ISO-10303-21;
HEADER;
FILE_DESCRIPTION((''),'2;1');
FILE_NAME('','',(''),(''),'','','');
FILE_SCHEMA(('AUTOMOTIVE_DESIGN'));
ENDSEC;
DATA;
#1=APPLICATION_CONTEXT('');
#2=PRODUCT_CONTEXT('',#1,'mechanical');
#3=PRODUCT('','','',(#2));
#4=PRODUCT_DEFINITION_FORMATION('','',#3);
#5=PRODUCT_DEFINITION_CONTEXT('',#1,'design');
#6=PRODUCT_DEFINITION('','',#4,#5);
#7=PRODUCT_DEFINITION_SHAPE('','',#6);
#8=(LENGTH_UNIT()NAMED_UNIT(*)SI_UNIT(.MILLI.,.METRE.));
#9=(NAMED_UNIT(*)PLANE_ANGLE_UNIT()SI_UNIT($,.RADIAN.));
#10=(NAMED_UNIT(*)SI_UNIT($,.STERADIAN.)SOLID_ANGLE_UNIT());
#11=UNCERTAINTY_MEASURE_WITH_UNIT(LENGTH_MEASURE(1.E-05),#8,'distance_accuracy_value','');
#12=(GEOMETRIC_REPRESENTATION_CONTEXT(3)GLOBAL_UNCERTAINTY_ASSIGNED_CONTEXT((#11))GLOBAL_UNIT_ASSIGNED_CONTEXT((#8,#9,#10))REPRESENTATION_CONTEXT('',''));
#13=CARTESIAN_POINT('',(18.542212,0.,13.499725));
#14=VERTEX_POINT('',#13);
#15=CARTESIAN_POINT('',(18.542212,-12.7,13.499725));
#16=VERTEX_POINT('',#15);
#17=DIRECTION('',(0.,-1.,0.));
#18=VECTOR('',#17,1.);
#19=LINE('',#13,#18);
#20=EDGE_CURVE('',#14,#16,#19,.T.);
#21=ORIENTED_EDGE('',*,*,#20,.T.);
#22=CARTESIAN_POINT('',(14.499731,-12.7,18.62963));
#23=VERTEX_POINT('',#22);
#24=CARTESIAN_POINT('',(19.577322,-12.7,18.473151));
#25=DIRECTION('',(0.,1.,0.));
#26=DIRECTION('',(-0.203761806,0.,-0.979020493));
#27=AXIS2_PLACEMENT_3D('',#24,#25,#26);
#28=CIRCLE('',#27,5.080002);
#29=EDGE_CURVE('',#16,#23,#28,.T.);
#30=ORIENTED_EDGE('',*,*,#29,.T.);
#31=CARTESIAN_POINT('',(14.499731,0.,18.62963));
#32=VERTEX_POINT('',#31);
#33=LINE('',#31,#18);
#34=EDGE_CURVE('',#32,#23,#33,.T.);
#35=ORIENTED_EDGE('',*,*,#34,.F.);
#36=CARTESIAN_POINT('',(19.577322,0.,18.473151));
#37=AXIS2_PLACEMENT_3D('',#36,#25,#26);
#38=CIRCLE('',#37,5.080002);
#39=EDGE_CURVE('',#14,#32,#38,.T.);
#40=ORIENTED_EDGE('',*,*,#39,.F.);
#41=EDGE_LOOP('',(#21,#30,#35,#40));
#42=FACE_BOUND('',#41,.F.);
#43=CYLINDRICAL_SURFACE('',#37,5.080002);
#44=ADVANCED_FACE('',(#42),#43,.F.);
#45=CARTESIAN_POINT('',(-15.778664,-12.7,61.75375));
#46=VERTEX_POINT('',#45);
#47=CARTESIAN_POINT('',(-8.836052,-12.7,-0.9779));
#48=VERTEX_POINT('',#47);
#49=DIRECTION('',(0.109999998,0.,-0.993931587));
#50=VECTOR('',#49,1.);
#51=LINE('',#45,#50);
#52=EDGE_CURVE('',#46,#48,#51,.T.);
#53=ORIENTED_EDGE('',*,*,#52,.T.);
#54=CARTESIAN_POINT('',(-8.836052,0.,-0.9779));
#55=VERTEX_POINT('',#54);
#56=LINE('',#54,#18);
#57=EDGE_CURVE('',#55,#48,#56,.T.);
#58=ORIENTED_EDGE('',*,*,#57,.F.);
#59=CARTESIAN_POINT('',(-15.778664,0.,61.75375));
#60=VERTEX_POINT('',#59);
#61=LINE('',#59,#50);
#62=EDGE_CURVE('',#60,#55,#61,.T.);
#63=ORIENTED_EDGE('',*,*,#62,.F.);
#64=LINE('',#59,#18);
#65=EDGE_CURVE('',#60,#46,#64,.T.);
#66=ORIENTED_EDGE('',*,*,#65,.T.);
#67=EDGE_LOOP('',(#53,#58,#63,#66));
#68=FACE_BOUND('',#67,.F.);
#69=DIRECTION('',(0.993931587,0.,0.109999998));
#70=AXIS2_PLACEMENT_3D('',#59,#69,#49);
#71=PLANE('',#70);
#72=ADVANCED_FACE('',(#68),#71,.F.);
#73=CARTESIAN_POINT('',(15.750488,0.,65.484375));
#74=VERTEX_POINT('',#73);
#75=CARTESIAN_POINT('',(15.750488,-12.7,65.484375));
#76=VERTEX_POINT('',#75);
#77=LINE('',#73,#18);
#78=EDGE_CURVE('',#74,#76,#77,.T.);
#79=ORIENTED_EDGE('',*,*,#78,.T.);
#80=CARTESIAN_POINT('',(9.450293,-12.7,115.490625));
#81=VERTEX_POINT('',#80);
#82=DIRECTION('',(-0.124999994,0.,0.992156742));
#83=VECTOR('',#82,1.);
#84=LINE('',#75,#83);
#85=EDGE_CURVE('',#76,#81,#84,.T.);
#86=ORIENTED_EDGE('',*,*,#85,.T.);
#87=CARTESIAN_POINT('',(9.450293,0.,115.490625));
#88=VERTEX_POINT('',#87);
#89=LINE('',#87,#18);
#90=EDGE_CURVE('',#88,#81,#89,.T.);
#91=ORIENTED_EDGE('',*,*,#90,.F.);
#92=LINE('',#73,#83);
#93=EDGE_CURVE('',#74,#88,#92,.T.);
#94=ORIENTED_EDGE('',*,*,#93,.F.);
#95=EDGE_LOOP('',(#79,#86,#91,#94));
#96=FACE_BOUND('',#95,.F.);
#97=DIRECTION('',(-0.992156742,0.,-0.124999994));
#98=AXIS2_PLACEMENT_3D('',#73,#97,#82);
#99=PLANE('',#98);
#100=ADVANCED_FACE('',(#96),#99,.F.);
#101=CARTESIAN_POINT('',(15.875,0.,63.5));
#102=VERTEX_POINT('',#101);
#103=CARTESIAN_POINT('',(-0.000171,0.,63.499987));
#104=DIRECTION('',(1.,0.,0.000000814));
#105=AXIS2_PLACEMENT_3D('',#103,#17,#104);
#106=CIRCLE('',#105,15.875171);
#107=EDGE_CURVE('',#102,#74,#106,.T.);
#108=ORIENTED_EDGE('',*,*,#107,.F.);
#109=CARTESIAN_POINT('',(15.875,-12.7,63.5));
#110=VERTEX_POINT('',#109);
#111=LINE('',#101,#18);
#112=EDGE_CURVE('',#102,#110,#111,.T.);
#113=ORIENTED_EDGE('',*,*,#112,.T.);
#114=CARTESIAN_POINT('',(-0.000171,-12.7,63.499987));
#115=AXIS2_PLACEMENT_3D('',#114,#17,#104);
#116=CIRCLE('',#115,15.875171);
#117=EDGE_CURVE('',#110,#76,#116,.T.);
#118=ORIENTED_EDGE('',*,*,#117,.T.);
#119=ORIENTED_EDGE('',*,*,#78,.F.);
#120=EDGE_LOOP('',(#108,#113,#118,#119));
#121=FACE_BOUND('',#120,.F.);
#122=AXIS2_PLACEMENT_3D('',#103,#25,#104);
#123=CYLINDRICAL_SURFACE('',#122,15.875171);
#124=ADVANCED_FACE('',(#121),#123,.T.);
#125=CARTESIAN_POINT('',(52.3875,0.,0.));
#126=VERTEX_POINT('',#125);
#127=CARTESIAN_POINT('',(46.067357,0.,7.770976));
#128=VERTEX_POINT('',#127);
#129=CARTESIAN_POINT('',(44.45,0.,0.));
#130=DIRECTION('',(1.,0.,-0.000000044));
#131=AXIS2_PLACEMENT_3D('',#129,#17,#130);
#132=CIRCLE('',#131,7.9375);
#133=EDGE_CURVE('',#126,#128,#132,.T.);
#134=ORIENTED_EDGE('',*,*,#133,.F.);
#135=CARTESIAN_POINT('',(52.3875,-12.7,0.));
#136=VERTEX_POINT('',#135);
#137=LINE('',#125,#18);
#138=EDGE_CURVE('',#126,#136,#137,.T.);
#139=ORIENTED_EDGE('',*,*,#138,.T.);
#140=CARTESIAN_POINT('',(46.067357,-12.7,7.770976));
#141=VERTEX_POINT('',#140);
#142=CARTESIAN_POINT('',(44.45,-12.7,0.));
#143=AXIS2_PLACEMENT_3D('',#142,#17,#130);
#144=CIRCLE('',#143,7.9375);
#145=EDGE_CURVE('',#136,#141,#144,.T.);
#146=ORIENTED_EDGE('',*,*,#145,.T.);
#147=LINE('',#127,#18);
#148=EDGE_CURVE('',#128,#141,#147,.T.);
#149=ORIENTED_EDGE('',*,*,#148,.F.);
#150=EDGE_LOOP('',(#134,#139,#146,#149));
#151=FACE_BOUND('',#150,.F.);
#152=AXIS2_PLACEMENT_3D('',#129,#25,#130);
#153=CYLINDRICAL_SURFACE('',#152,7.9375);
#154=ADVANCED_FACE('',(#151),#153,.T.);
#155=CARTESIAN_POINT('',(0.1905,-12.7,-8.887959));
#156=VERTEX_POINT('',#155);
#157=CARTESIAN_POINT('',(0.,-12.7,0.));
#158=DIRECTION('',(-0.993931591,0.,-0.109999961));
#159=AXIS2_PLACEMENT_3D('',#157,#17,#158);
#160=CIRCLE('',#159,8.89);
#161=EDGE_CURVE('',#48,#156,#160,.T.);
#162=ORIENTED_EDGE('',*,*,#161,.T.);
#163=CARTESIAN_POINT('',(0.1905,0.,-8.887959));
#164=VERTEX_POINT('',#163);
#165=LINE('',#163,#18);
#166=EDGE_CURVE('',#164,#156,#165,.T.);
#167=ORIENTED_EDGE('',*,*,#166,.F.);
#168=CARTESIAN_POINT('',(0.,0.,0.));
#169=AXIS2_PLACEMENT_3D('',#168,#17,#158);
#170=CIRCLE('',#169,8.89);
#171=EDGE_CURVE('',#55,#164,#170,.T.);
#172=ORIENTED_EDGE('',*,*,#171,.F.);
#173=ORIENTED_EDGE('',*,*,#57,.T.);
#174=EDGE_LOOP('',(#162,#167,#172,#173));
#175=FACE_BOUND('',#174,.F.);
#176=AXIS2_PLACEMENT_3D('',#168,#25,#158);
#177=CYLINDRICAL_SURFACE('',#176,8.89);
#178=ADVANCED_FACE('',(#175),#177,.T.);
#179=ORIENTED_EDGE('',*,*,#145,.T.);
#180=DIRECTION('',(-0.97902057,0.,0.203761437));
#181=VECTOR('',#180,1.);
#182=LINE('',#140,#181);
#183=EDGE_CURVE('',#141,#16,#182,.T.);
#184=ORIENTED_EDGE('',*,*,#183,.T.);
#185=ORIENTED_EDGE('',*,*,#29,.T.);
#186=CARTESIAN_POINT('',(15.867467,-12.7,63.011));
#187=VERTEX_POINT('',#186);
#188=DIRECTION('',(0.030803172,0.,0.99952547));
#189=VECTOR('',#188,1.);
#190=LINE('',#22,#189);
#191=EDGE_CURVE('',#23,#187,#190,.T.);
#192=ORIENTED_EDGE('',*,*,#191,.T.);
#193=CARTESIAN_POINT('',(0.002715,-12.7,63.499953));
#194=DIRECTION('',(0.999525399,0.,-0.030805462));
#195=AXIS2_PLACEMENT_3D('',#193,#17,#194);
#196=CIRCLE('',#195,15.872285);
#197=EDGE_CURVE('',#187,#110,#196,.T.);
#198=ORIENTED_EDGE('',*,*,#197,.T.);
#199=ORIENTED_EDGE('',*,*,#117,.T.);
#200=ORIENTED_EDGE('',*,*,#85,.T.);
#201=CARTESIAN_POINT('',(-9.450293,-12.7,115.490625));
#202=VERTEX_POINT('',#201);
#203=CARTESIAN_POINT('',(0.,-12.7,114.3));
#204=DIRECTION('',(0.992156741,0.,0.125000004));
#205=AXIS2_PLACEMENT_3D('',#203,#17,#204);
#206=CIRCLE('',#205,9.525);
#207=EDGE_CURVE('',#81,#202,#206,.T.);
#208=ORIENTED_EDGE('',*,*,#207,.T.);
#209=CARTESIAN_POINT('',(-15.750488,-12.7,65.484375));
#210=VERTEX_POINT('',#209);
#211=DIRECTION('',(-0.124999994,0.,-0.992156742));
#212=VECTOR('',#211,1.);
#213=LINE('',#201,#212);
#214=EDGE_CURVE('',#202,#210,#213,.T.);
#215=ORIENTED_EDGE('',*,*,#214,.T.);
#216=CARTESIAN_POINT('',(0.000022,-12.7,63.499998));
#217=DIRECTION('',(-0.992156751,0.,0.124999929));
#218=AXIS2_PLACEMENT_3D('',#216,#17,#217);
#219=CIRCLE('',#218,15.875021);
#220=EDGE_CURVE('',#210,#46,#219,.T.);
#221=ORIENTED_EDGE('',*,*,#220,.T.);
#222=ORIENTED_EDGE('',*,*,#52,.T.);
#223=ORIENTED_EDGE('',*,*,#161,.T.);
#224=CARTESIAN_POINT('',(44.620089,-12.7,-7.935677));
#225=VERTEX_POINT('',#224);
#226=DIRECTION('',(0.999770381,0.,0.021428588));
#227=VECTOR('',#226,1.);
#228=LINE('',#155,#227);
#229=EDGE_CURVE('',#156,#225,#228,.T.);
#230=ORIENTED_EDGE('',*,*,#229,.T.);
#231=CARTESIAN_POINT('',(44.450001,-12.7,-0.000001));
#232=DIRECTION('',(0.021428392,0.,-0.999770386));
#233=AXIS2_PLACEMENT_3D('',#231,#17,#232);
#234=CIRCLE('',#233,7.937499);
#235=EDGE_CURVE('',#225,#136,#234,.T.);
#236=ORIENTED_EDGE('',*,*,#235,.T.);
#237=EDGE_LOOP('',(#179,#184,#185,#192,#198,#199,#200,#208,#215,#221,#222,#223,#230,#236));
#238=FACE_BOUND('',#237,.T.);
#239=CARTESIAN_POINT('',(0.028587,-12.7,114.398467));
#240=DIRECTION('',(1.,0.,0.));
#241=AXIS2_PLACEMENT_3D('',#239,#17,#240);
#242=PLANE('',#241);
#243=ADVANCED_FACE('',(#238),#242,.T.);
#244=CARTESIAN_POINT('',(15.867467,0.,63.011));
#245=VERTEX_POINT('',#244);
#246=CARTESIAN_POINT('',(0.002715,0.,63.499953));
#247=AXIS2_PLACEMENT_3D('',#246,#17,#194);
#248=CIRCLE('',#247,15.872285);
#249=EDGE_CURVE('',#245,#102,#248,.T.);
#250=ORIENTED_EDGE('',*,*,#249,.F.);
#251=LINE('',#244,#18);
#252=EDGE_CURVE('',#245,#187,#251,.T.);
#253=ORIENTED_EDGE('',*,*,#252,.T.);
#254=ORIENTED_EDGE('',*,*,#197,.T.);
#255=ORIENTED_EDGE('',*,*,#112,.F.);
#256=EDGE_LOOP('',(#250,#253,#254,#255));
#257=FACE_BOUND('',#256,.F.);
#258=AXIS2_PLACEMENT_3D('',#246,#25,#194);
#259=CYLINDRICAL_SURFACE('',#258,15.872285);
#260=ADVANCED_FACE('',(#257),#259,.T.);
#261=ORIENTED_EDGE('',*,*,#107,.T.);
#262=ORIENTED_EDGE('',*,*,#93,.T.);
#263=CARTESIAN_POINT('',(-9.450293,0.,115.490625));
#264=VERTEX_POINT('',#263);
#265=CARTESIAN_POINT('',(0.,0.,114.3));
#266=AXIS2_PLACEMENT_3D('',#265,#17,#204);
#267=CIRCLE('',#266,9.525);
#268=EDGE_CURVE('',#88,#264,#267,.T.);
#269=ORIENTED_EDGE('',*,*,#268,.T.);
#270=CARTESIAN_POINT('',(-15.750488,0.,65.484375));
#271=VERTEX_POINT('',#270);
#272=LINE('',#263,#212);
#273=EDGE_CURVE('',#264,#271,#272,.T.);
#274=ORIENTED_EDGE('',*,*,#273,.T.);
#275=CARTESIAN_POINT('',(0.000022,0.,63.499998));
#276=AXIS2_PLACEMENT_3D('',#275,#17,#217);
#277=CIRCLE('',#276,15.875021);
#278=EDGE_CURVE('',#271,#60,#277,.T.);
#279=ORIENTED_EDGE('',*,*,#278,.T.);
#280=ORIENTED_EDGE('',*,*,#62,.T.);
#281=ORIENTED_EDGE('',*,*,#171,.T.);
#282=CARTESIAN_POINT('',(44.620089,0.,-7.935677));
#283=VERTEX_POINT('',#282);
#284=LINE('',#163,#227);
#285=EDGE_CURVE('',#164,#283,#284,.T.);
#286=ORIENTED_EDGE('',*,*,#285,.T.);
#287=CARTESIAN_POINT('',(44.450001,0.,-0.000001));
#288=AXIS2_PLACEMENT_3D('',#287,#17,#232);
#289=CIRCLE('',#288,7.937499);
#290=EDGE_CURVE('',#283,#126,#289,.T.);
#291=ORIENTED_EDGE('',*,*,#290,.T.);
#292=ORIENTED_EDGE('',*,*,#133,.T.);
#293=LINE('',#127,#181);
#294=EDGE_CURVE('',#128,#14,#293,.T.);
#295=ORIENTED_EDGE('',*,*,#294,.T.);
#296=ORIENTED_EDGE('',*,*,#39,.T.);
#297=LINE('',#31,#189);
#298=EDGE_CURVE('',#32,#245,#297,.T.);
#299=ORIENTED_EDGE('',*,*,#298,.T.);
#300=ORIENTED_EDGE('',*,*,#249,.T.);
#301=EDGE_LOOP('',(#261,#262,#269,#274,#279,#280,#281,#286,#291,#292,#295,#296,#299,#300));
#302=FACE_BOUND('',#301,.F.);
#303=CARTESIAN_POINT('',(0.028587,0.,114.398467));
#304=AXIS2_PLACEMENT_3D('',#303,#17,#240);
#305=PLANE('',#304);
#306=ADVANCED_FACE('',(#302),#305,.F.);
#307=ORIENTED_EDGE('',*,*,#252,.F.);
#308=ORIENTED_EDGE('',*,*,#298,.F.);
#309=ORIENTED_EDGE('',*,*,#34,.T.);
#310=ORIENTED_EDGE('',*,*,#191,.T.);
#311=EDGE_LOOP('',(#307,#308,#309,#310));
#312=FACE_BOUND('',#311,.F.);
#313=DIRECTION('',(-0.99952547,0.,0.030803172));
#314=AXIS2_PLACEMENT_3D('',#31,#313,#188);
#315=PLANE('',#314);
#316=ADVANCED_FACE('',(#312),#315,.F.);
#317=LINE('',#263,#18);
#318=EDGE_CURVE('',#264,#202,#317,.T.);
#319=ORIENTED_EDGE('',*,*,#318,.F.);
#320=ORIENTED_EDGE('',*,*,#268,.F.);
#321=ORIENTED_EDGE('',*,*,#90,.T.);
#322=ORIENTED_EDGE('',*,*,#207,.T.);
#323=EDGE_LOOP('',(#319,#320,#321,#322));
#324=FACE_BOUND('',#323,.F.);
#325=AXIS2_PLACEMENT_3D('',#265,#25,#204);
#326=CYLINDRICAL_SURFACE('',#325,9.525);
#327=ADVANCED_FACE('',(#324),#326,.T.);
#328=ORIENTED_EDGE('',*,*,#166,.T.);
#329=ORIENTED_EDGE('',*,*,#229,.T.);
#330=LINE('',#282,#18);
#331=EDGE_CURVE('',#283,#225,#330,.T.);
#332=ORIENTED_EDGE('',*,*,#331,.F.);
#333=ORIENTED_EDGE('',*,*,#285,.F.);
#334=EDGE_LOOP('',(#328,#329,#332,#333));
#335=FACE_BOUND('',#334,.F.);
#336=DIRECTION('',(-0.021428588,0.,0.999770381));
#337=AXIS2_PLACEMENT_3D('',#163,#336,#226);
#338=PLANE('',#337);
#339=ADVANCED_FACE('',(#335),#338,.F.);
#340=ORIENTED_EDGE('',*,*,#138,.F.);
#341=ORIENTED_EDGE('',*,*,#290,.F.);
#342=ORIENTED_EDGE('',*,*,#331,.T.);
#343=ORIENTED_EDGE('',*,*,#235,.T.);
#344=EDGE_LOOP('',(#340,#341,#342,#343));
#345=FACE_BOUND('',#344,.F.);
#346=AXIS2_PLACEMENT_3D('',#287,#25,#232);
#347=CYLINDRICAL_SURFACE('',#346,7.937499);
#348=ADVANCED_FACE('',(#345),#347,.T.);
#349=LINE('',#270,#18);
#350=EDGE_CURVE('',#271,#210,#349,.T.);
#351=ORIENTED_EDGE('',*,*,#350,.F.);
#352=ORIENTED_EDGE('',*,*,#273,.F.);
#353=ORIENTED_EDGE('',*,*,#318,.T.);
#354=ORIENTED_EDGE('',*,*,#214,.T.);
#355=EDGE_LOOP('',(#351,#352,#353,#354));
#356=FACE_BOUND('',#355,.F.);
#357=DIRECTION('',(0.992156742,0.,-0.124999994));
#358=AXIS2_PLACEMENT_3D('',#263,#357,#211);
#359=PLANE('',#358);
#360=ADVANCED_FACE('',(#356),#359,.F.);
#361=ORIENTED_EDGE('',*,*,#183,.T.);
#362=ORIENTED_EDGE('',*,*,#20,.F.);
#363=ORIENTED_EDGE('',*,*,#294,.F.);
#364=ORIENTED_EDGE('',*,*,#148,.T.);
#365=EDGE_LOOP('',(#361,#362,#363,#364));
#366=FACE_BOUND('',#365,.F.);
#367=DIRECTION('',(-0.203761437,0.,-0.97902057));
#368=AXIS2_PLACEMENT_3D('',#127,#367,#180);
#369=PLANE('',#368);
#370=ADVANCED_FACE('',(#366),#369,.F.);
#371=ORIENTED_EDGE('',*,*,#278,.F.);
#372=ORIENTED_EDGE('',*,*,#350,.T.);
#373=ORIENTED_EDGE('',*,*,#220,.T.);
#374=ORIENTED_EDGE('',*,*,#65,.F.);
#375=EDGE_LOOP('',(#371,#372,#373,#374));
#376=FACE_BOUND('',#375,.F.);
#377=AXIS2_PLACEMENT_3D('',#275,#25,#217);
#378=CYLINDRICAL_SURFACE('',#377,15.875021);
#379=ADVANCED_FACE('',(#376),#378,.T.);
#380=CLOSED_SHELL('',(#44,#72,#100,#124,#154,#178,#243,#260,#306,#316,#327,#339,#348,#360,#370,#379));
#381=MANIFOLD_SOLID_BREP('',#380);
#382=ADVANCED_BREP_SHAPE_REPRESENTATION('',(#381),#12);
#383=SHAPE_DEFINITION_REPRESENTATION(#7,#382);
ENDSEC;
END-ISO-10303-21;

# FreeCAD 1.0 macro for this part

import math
import FreeCAD as App
import Part
import Sketcher

V = App.Vector
Q = App.Units.Quantity

doc = App.newDocument("Part")
body = doc.addObject("PartDesign::Body", "Body")

sketch1 = body.newObject("Sketcher::SketchObject", "Sketch")
sketch1.AttachmentSupport = (doc.getObject("XZ_Plane"), [""])
sketch1.MapMode = "FlatFace"
sketch1.addGeometry(Part.ArcOfCircle(Part.Circle(V(0, 114.3, 0), V(0, 0, 1), 9.525), math.radians(7.180756), math.radians(172.819244)), False)
sketch1.addGeometry(Part.LineSegment(V(-9.450293, 115.490625, 0), V(-15.750488, 65.484375, 0)), False)
sketch1.addGeometry(Part.ArcOfCircle(Part.Circle(V(0.000022, 63.499998, 0), V(0, 0, 1), 15.875021), math.radians(172.819248), math.radians(186.315301)), False)
sketch1.addGeometry(Part.LineSegment(V(-15.778664, 61.75375, 0), V(-8.836052, -0.9779, 0)), False)
sketch1.addGeometry(Part.ArcOfCircle(Part.Circle(V(0, 0, 0), V(0, 0, 1), 8.89), math.radians(-173.684687), math.radians(-88.772138)), False)
sketch1.addGeometry(Part.LineSegment(V(0.1905, -8.887959, 0), V(44.620089, -7.935677, 0)), False)
sketch1.addGeometry(Part.ArcOfCircle(Part.Circle(V(44.450001, -0.000001, 0), V(0, 0, 1), 7.937499), math.radians(-88.77215), math.radians(0.000005)), False)
sketch1.addGeometry(Part.ArcOfCircle(Part.Circle(V(44.45, 0, 0), V(0, 0, 1), 7.9375), math.radians(-0.000003), math.radians(78.242991)), False)
sketch1.addGeometry(Part.LineSegment(V(46.067357, 7.770976, 0), V(18.542212, 13.499725, 0)), False)
sketch1.addGeometry(Part.ArcOfCircle(Part.Circle(V(19.577322, 18.473151, 0), V(0, 0, 1), 5.080002), math.radians(178.234842), math.radians(258.242974)), False)
sketch1.addGeometry(Part.LineSegment(V(14.499731, 18.62963, 0), V(15.867467, 63.011, 0)), False)
sketch1.addGeometry(Part.ArcOfCircle(Part.Circle(V(0.002715, 63.499953, 0), V(0, 0, 1), 15.872285), math.radians(-1.765302), math.radians(0.000169)), False)
sketch1.addGeometry(Part.ArcOfCircle(Part.Circle(V(-0.000171, 63.499987, 0), V(0, 0, 1), 15.875171), math.radians(0.000047), math.radians(7.180725)), False)
sketch1.addGeometry(Part.LineSegment(V(15.750488, 65.484375, 0), V(9.450293, 115.490625, 0)), False)
sketch1.addConstraint(Sketcher.Constraint("Coincident", 0, 2, 1, 1))
sketch1.addConstraint(Sketcher.Constraint("Coincident", 1, 2, 2, 1))
sketch1.addConstraint(Sketcher.Constraint("Coincident", 2, 2, 3, 1))
sketch1.addConstraint(Sketcher.Constraint("Coincident", 3, 2, 4, 1))
sketch1.addConstraint(Sketcher.Constraint("Coincident", 4, 2, 5, 1))
sketch1.addConstraint(Sketcher.Constraint("Coincident", 5, 2, 6, 1))
sketch1.addConstraint(Sketcher.Constraint("Coincident", 6, 2, 7, 1))
sketch1.addConstraint(Sketcher.Constraint("Coincident", 7, 2, 8, 1))
sketch1.addConstraint(Sketcher.Constraint("Coincident", 8, 2, 9, 2))
sketch1.addConstraint(Sketcher.Constraint("Coincident", 9, 1, 10, 1))
sketch1.addConstraint(Sketcher.Constraint("Coincident", 10, 2, 11, 1))
sketch1.addConstraint(Sketcher.Constraint("Coincident", 11, 2, 12, 1))
sketch1.addConstraint(Sketcher.Constraint("Coincident", 12, 2, 13, 1))
sketch1.addConstraint(Sketcher.Constraint("Coincident", 13, 2, 0, 1))
sketch1.addConstraint(Sketcher.Constraint("Coincident", 4, 3, -1, 1))
sketch1.addConstraint(Sketcher.Constraint("Coincident", 7, 3, 6, 3))
sketch1.addConstraint(Sketcher.Constraint("PointOnObject", 0, 3, -2))
sketch1.addConstraint(Sketcher.Constraint("PointOnObject", 6, 3, -1))
sketch1.addConstraint(Sketcher.Constraint("PointOnObject", 6, 2, -1))
sketch1.addConstraint(Sketcher.Constraint("Radius", 9, Q("0.2000001 in")))
sketch1.addConstraint(Sketcher.Constraint("Radius", 4, Q("0.35 in")))
sketch1.addConstraint(Sketcher.Constraint("Radius", 0, Q("0.375 in")))
sketch1.addConstraint(Sketcher.Constraint("Radius", 6, Q("0.3125 in")))
sketch1.addConstraint(Sketcher.Constraint("DistanceY", 2, 3, 0, 3, Q("2.0000001 in")))
sketch1.addConstraint(Sketcher.Constraint("DistanceY", -1, 1, 0, 3, Q("4.5 in")))
sketch1.addConstraint(Sketcher.Constraint("DistanceY", -1, 1, 11, 2, Q("2.5 in")))
sketch1.addConstraint(Sketcher.Constraint("DistanceX", -1, 1, 6, 3, Q("1.75 in")))
sketch1.addConstraint(Sketcher.Constraint("DistanceY", -1, 1, 0, 2, Q("4.546875 in")))
sketch1.addConstraint(Sketcher.Constraint("DistanceY", -1, 1, 1, 2, Q("2.578125 in")))
sketch1.addConstraint(Sketcher.Constraint("DistanceX", -1, 1, 11, 2, Q("0.625 in")))
sketch1.addConstraint(Sketcher.Constraint("DistanceY", -1, 1, 12, 2, Q("2.578125 in")))
sketch1.addConstraint(Sketcher.Constraint("DistanceY", -1, 1, 13, 2, Q("4.546875 in")))
sketch1.addConstraint(Sketcher.Constraint("Radius", 2, Q("15.875021 mm")))
sketch1.addConstraint(Sketcher.Constraint("Radius", 12, Q("15.875171 mm")))
sketch1.addConstraint(Sketcher.Constraint("DistanceY", 3, 2, -1, 1, Q("0.0385 in")))
sketch1.addConstraint(Sketcher.Constraint("DistanceX", -1, 1, 4, 2, Q("0.0075 in")))
sketch1.addConstraint(Sketcher.Constraint("Radius", 11, Q("15.872285 mm")))
sketch1.addConstraint(Sketcher.Constraint("DistanceY", -1, 1, 10, 2, Q("63.011 mm")))
sketch1.addConstraint(Sketcher.Constraint("DistanceX", 2, 3, 9, 3, Q("19.577301 mm")))
sketch1.addConstraint(Sketcher.Constraint("Distance", 8, Q("28.114981 mm")))
sketch1.addConstraint(Sketcher.Constraint("Distance", 10, Q("44.40244 mm")))
sketch1.addConstraint(Sketcher.Constraint("DistanceY", -1, 1, 9, 3, Q("18.473151 mm")))
sketch1.addConstraint(Sketcher.Constraint("DistanceX", 1, 2, -1, 1, Q("15.750488 mm")))
sketch1.addConstraint(Sketcher.Constraint("DistanceY", -1, 1, 2, 2, Q("61.75375 mm")))
sketch1.addConstraint(Sketcher.Constraint("DistanceX", -1, 1, 5, 2, Q("44.620089 mm")))
sketch1.addConstraint(Sketcher.Constraint("DistanceX", -1, 1, 8, 2, Q("18.542212 mm")))
sketch1.addConstraint(Sketcher.Constraint("DistanceX", -1, 1, 12, 2, Q("15.750488 mm")))
sketch1.addConstraint(Sketcher.Constraint("DistanceY", 11, 3, 0, 2, Q("51.990672 mm")))
pad1 = body.newObject("PartDesign::Pad", "Pad")
pad1.Profile = sketch1
pad1.Length = Q("0.5 in")

doc.recompute()
